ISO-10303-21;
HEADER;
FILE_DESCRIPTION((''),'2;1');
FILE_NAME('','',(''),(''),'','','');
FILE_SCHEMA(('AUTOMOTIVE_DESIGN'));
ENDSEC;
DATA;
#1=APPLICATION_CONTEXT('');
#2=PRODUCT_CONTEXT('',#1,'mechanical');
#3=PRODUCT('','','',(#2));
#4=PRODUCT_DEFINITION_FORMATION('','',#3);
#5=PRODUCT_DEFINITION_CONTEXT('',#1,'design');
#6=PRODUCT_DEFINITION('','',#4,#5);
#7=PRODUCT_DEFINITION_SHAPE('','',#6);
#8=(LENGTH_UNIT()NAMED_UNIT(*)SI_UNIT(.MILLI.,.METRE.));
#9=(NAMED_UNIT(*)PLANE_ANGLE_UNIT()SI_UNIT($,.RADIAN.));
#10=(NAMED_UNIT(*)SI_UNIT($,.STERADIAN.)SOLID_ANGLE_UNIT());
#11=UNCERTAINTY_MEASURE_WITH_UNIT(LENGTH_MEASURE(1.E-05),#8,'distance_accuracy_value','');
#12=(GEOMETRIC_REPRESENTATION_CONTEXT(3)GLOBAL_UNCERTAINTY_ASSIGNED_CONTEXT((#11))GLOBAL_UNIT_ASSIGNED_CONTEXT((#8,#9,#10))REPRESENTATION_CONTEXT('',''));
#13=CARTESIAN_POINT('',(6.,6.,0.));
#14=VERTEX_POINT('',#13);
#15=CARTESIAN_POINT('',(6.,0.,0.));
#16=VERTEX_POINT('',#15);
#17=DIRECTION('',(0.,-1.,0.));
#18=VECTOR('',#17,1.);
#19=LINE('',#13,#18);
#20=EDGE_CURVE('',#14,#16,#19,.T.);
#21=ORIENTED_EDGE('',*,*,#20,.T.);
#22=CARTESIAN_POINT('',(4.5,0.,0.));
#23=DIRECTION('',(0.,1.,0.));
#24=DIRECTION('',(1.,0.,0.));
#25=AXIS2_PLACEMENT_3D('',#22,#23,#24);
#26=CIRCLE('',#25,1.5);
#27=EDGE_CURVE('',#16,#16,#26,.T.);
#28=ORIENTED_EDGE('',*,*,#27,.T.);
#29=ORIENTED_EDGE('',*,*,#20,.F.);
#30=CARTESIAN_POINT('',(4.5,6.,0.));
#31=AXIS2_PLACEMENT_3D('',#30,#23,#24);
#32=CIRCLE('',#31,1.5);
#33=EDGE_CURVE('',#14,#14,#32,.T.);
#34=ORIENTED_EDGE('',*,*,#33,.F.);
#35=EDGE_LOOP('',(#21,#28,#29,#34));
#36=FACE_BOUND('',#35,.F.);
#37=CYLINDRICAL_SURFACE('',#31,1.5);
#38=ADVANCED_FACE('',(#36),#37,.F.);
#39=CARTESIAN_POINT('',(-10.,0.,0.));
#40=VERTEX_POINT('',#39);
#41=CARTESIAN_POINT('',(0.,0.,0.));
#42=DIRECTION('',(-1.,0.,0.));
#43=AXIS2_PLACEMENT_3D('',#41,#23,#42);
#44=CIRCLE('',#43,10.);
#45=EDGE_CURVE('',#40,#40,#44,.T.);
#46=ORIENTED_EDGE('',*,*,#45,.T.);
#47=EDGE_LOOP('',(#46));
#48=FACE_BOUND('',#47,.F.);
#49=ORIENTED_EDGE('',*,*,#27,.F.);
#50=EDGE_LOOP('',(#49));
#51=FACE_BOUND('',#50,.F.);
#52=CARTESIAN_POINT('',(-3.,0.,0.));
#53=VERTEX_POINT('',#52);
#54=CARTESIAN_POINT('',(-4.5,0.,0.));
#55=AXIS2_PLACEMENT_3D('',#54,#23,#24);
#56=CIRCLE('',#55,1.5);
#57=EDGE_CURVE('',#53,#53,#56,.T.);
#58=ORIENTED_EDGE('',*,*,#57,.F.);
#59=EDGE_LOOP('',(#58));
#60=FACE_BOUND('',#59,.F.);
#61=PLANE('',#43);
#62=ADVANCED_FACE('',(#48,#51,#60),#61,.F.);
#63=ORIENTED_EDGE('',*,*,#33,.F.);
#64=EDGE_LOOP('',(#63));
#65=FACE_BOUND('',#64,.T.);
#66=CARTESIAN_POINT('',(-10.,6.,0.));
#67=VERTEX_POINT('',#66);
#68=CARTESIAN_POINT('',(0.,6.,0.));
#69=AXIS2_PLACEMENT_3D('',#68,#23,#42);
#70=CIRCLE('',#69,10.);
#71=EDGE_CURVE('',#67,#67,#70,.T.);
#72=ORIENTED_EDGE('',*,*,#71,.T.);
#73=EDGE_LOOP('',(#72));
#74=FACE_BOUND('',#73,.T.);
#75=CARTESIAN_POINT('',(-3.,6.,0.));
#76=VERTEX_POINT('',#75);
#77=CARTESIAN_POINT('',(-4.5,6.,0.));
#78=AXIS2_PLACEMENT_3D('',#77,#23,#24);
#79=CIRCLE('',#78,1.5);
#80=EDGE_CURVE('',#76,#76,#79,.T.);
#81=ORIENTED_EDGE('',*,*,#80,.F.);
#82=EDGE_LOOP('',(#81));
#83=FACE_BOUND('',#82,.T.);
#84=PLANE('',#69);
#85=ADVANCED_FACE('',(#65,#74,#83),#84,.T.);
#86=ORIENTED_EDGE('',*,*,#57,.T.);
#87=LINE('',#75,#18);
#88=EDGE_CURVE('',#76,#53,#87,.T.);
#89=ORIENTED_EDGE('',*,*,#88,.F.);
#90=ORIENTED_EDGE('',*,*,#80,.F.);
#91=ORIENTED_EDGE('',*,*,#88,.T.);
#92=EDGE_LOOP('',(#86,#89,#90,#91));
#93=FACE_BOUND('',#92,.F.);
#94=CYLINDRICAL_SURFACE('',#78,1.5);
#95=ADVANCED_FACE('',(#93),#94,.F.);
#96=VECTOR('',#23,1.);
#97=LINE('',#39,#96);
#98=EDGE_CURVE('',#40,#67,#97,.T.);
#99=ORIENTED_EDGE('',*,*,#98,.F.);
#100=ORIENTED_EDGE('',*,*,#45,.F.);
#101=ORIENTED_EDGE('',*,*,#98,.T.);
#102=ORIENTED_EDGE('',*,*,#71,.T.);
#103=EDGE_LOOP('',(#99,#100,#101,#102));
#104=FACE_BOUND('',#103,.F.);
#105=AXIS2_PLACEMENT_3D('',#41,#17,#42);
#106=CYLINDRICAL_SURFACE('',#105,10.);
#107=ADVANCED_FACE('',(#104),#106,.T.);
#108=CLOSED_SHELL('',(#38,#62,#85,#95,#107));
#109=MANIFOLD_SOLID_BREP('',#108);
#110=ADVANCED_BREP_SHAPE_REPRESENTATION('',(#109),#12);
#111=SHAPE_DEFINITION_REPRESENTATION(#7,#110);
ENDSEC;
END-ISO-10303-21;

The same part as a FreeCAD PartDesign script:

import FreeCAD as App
import Part
import Sketcher

V = App.Vector

doc = App.newDocument("Part")
body = doc.addObject("PartDesign::Body", "Body")

sketch1 = body.newObject("Sketcher::SketchObject", "Sketch")
sketch1.AttachmentSupport = (doc.getObject("XZ_Plane"), [""])
sketch1.MapMode = "FlatFace"
sketch1.addGeometry(Part.Circle(V(0, 0, 0), V(0, 0, 1), 10), False)
sketch1.addConstraint([
    Sketcher.Constraint("Coincident", 0, 3, -1, 1),
    Sketcher.Constraint("Diameter", 0, 20.0),
])
pad1 = body.newObject("PartDesign::Pad", "Pad")
pad1.Profile = sketch1
pad1.Length = 6
pad1.Reversed = True

sketch2 = body.newObject("Sketcher::SketchObject", "Sketch001")
sketch2.AttachmentSupport = (doc.getObject("XZ_Plane"), [""])
sketch2.MapMode = "FlatFace"
sketch2.AttachmentOffset = App.Placement(V(0, 0, -6), App.Rotation())
sketch2.addGeometry([
    Part.Circle(V(-4.5, 0, 0), V(0, 0, 1), 1.5),
    Part.Circle(V(4.5, 0, 0), V(0, 0, 1), 1.5),
], False)
sketch2.addConstraint([
    Sketcher.Constraint("Equal", 0, 1),
    Sketcher.Constraint("Symmetric", 0, 3, 1, 3, -1, 1),
    Sketcher.Constraint("PointOnObject", 0, 3, -1),
    Sketcher.Constraint("Diameter", 0, 3.0),
    Sketcher.Constraint("DistanceX", 0, 3, -1, 1, 4.5),
])
pocket1 = body.newObject("PartDesign::Pocket", "Pocket")
pocket1.Profile = sketch2
pocket1.Type = "ThroughAll"
pocket1.Reversed = True

doc.recompute()
